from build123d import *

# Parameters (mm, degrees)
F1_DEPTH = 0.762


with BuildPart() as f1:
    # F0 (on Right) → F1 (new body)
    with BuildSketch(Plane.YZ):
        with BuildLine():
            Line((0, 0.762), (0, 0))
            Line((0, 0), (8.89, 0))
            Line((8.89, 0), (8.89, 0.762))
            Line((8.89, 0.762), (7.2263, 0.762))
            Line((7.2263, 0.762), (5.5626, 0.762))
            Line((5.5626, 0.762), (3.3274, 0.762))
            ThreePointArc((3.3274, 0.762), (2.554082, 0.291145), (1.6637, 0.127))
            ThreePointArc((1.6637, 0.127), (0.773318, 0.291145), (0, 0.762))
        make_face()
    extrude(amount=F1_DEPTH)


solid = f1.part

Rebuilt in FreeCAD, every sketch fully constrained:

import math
import FreeCAD as App
import Part
import Sketcher
from FreeCAD import Vector
Q = App.Units.Quantity

doc = App.newDocument("Part")
body = doc.addObject("PartDesign::Body", "Body")

# Sketch on YZ plane
sketch1 = doc.addObject("Sketcher::SketchObject", "Sketch")
body.addObject(sketch1)
sketch1.AttachmentSupport = (doc.YZ_Plane, [""])
sketch1.MapMode = "FlatFace"
sketch1.addGeometry(Part.LineSegment(Vector(0, 0.8, 0), Vector(0, 0, 0)), False)
sketch1.addGeometry(Part.LineSegment(Vector(0, 0, 0), Vector(8.9, 0, 0)), False)
sketch1.addGeometry(Part.LineSegment(Vector(8.9, 0, 0), Vector(8.9, 0.8, 0)), False)
sketch1.addGeometry(Part.LineSegment(Vector(8.9, 0.8, 0), Vector(3.3, 0.8, 0)), False)
sketch1.addGeometry(Part.ArcOfCircle(Part.Circle(Vector(1.7, 2.6, 0), Vector(0, 0, 1), 2.5), math.radians(-90), math.radians(-48)), False)
sketch1.addGeometry(Part.ArcOfCircle(Part.Circle(Vector(1.7, 2.6, 0), Vector(0, 0, 1), 2.5), math.radians(-132), math.radians(-90)), False)
sketch1.addConstraint(Sketcher.Constraint("Coincident", 0, 2, 1, 1))
sketch1.addConstraint(Sketcher.Constraint("Coincident", 1, 2, 2, 1))
sketch1.addConstraint(Sketcher.Constraint("Coincident", 2, 2, 3, 1))
sketch1.addConstraint(Sketcher.Constraint("Coincident", 3, 2, 4, 2))
sketch1.addConstraint(Sketcher.Constraint("Tangent", 4, 1, 5, 2))
sketch1.addConstraint(Sketcher.Constraint("Coincident", 5, 1, 0, 1))
sketch1.addConstraint(Sketcher.Constraint("Vertical", 0))
sketch1.addConstraint(Sketcher.Constraint("Horizontal", 1))
sketch1.addConstraint(Sketcher.Constraint("Vertical", 2))
sketch1.addConstraint(Sketcher.Constraint("Horizontal", 3))
sketch1.addConstraint(Sketcher.Constraint("Coincident", 0, 2, -1, 1))
sketch1.addConstraint(Sketcher.Constraint("Equal", 4, 5))
sketch1.addConstraint(Sketcher.Constraint("Horizontal", 3, 2, 5, 1))
sketch1.addConstraint(Sketcher.Constraint("Vertical", 5, 3, 4, 1))
sketch1.addConstraint(Sketcher.Constraint("DistanceX", 1, 1, 1, 2, Q("0.35 in")))
sketch1.addConstraint(Sketcher.Constraint("DistanceY", 0, 2, 0, 1, Q("0.03 in")))
sketch1.addConstraint(Sketcher.Constraint("DistanceX", 3, 2, 3, 1, Q("0.219 in")))
sketch1.addConstraint(Sketcher.Constraint("DistanceY", -1, 1, 4, 1, Q("0.005 in")))
pad1 = doc.addObject("PartDesign::Pad", "Pad")
body.addObject(pad1)
pad1.Profile = sketch1
pad1.Length = Q("0.03 in")

doc.recompute()
